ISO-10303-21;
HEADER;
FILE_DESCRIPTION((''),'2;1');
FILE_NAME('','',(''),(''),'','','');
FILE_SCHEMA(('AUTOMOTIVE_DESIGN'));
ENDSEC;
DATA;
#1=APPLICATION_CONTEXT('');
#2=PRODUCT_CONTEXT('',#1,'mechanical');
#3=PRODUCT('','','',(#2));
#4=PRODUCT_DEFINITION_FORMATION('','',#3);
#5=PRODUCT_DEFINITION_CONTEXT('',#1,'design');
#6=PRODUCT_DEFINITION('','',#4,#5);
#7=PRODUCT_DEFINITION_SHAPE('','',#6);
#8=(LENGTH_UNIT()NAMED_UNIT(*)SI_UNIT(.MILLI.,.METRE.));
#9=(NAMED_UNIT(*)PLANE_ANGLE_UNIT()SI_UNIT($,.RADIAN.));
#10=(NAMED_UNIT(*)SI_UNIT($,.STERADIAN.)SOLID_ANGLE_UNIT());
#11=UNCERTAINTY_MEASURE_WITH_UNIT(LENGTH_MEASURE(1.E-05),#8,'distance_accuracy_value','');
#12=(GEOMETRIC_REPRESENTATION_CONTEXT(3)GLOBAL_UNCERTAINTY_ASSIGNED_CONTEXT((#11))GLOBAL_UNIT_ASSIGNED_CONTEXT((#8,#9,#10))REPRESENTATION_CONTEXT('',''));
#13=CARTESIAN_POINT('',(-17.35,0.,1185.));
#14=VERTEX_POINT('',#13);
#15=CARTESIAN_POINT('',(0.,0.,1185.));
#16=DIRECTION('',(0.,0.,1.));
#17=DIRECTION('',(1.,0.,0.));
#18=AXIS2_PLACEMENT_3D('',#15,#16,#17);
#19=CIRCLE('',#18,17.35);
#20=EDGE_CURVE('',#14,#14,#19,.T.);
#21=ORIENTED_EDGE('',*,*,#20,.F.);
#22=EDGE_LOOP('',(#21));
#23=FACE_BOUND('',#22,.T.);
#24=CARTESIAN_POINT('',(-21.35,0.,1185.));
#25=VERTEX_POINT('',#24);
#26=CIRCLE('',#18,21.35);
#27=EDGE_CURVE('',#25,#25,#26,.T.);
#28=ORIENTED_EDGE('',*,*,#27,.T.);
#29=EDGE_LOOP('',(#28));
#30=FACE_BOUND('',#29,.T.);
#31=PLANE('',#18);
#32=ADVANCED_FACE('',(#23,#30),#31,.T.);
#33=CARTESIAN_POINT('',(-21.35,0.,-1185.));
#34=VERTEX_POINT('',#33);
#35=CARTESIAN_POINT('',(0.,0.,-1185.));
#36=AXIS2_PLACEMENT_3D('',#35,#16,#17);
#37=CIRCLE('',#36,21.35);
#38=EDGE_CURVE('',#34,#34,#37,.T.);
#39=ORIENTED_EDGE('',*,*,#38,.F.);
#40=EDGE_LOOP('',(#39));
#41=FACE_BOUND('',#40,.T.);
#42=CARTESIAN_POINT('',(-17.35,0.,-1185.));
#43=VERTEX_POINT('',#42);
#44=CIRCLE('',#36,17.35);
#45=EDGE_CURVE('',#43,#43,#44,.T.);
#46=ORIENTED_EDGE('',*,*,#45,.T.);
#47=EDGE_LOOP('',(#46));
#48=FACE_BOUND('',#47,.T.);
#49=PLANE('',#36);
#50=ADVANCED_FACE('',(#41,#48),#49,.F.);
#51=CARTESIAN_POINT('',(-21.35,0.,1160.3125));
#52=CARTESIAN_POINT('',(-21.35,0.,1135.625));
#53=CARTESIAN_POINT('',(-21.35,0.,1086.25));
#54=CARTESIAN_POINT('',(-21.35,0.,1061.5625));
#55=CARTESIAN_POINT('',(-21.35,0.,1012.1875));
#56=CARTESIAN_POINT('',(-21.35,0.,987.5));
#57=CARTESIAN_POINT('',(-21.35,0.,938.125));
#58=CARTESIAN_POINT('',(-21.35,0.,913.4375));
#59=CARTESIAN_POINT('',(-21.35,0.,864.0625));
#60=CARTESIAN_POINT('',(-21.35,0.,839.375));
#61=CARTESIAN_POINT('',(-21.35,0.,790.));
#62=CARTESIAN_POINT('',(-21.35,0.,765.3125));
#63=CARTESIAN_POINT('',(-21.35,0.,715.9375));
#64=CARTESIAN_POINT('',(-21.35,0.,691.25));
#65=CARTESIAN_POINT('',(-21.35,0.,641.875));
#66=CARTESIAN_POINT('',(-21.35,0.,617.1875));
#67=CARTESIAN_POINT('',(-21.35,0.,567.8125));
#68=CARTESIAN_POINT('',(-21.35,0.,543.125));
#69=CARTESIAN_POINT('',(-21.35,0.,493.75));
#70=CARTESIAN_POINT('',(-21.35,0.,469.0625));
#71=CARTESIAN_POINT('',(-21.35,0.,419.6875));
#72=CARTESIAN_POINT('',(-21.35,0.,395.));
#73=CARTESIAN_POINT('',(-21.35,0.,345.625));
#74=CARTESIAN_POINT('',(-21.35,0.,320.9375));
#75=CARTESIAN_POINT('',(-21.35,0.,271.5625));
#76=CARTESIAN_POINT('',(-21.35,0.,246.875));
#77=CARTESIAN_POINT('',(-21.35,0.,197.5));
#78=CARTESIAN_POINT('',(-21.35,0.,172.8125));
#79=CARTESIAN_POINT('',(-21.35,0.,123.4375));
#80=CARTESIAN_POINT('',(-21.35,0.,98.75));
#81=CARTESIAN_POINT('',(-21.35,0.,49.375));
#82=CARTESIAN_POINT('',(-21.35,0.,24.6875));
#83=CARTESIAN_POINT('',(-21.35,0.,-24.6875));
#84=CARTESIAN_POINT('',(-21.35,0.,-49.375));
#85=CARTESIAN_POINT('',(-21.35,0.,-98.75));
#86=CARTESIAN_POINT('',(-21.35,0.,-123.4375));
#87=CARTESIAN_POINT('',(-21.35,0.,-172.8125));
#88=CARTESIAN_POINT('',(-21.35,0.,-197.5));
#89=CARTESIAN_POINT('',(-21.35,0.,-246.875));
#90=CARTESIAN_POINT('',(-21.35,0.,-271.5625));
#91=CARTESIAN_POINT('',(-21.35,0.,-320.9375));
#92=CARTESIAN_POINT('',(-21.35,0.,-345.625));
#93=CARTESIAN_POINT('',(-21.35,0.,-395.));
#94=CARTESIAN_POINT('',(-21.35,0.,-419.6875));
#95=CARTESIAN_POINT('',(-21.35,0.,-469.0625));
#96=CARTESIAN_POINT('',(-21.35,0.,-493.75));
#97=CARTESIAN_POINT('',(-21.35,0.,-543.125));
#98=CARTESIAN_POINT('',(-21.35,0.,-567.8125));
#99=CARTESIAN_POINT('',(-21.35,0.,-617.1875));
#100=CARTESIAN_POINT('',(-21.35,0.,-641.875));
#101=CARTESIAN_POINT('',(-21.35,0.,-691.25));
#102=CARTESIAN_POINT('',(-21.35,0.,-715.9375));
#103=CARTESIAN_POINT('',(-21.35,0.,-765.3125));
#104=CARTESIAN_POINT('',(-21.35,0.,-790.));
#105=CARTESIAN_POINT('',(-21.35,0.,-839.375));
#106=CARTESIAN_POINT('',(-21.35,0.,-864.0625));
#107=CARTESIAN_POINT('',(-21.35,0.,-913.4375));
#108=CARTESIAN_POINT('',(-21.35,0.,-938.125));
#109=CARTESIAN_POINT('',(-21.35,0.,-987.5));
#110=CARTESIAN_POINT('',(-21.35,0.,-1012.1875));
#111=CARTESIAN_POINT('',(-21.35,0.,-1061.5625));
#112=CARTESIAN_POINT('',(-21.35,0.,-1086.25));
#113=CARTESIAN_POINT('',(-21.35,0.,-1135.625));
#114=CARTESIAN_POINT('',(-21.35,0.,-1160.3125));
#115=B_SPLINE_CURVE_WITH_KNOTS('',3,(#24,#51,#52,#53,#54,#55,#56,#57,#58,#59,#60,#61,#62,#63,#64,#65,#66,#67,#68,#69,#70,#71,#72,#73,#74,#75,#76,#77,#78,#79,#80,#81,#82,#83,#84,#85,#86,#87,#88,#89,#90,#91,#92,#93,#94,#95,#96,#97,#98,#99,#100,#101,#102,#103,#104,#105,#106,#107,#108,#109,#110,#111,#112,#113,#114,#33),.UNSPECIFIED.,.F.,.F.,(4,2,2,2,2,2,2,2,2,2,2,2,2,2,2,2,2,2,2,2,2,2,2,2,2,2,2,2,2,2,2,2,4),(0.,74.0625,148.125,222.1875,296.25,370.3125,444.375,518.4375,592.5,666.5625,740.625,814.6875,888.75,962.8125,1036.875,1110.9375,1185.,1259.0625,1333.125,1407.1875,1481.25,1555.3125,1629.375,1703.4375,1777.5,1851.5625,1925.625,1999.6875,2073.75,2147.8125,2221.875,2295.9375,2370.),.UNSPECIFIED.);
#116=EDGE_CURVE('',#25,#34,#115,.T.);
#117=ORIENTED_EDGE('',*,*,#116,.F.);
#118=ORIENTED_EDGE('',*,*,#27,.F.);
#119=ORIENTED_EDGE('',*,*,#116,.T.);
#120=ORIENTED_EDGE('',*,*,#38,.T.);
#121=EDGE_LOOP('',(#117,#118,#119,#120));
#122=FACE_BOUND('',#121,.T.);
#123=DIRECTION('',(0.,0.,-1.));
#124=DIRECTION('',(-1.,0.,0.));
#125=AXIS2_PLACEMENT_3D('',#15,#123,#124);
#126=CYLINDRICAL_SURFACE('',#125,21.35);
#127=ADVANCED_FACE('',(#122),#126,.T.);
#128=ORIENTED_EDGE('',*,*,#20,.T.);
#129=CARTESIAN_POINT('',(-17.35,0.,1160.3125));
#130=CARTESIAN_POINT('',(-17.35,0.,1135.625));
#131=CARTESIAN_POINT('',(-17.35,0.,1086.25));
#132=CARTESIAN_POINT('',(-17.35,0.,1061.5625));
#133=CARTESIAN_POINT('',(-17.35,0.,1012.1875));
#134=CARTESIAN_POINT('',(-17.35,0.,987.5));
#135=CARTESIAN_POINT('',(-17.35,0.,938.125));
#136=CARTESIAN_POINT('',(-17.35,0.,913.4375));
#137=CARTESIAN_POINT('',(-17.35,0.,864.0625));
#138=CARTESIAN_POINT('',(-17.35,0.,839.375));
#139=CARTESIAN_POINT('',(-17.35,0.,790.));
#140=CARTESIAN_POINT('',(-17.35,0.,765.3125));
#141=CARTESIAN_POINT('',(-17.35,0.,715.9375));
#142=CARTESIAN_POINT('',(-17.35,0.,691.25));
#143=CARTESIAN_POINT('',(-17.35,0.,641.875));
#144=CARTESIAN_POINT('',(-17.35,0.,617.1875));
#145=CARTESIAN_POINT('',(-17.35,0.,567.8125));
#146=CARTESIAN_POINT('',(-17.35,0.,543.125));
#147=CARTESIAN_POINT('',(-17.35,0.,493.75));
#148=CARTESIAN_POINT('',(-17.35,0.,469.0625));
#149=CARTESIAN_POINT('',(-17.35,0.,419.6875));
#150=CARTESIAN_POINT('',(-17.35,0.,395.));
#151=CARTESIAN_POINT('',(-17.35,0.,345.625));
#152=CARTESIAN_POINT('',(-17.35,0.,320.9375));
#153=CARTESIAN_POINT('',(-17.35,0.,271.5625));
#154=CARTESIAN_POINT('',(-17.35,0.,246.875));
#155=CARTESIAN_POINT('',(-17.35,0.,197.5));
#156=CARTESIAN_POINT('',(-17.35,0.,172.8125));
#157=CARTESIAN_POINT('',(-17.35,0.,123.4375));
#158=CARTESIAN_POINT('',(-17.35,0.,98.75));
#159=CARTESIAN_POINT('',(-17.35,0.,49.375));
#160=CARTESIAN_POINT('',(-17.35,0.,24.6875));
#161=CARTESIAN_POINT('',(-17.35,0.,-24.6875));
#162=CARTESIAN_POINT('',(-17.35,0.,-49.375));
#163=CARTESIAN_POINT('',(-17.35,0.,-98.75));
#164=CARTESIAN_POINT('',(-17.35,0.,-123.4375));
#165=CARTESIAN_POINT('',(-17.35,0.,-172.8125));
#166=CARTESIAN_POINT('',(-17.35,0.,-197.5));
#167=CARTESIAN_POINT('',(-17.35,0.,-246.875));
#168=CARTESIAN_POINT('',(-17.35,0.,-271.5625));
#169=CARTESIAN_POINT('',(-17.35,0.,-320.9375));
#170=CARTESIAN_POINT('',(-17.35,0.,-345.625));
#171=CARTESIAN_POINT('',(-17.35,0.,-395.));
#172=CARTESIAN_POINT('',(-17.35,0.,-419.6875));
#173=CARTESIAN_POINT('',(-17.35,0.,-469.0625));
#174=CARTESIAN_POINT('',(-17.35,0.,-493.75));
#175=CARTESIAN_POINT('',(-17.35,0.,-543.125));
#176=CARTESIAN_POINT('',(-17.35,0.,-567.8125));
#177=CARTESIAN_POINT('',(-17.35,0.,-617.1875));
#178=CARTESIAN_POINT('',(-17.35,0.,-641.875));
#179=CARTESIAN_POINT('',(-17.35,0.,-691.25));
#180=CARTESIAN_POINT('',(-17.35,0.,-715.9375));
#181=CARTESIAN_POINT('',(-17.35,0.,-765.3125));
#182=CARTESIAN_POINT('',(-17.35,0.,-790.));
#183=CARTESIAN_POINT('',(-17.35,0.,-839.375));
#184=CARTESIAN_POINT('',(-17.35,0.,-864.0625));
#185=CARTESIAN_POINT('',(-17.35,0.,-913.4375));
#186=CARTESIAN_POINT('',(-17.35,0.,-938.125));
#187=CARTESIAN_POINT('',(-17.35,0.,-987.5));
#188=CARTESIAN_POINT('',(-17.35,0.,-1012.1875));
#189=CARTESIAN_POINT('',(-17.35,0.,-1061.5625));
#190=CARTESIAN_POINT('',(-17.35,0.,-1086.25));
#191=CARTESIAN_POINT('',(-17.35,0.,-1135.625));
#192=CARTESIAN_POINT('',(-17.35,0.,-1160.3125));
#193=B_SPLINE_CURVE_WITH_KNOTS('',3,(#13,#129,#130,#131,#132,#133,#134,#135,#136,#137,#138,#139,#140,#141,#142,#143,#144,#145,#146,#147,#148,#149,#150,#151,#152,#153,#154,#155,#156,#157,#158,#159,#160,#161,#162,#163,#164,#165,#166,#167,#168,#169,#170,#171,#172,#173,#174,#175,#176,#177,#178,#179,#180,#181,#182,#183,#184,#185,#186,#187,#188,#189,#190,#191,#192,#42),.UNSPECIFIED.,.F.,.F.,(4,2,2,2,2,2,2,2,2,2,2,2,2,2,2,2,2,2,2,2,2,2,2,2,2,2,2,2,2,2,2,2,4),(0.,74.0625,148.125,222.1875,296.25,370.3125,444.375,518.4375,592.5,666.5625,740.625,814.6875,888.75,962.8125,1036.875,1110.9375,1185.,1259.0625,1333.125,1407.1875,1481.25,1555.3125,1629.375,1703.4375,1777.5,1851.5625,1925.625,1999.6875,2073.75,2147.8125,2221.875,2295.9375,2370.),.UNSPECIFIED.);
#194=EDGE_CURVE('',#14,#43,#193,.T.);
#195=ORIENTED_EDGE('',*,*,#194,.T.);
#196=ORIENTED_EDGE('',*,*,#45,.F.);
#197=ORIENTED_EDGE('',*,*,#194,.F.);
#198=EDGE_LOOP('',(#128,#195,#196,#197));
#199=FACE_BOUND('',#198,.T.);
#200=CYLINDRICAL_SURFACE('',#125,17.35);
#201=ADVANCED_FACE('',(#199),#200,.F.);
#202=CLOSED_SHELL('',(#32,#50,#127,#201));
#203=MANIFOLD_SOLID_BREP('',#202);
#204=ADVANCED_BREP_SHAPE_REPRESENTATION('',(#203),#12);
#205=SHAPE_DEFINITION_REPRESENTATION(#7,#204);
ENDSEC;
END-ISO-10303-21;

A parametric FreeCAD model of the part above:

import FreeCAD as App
import Part
import Sketcher
from FreeCAD import Vector

doc = App.newDocument("Part")
body = doc.addObject("PartDesign::Body", "Body")

# Sketch on XY plane
sketch1 = body.newObject("Sketcher::SketchObject", "Sketch")
sketch1.AttachmentSupport = (doc.getObject("XY_Plane"), [""])
sketch1.MapMode = "FlatFace"
sketch1.addGeometry([
    Part.Circle(Vector(0, 0, 0), Vector(0, 0, 1), 21.35),
    Part.Circle(Vector(0, 0, 0), Vector(0, 0, 1), 17.35),
], False)
sketch1.addConstraint([
    Sketcher.Constraint("Coincident", 0, 3, -1, 1),
    Sketcher.Constraint("Coincident", 1, 3, -1, 1),
    Sketcher.Constraint("Diameter", 0, 42.7),
    Sketcher.Constraint("Diameter", 1, 34.7),
])
pad1 = body.newObject("PartDesign::Pad", "Pad")
pad1.Profile = sketch1
pad1.Length = 2370
pad1.Midplane = True

doc.recompute()
